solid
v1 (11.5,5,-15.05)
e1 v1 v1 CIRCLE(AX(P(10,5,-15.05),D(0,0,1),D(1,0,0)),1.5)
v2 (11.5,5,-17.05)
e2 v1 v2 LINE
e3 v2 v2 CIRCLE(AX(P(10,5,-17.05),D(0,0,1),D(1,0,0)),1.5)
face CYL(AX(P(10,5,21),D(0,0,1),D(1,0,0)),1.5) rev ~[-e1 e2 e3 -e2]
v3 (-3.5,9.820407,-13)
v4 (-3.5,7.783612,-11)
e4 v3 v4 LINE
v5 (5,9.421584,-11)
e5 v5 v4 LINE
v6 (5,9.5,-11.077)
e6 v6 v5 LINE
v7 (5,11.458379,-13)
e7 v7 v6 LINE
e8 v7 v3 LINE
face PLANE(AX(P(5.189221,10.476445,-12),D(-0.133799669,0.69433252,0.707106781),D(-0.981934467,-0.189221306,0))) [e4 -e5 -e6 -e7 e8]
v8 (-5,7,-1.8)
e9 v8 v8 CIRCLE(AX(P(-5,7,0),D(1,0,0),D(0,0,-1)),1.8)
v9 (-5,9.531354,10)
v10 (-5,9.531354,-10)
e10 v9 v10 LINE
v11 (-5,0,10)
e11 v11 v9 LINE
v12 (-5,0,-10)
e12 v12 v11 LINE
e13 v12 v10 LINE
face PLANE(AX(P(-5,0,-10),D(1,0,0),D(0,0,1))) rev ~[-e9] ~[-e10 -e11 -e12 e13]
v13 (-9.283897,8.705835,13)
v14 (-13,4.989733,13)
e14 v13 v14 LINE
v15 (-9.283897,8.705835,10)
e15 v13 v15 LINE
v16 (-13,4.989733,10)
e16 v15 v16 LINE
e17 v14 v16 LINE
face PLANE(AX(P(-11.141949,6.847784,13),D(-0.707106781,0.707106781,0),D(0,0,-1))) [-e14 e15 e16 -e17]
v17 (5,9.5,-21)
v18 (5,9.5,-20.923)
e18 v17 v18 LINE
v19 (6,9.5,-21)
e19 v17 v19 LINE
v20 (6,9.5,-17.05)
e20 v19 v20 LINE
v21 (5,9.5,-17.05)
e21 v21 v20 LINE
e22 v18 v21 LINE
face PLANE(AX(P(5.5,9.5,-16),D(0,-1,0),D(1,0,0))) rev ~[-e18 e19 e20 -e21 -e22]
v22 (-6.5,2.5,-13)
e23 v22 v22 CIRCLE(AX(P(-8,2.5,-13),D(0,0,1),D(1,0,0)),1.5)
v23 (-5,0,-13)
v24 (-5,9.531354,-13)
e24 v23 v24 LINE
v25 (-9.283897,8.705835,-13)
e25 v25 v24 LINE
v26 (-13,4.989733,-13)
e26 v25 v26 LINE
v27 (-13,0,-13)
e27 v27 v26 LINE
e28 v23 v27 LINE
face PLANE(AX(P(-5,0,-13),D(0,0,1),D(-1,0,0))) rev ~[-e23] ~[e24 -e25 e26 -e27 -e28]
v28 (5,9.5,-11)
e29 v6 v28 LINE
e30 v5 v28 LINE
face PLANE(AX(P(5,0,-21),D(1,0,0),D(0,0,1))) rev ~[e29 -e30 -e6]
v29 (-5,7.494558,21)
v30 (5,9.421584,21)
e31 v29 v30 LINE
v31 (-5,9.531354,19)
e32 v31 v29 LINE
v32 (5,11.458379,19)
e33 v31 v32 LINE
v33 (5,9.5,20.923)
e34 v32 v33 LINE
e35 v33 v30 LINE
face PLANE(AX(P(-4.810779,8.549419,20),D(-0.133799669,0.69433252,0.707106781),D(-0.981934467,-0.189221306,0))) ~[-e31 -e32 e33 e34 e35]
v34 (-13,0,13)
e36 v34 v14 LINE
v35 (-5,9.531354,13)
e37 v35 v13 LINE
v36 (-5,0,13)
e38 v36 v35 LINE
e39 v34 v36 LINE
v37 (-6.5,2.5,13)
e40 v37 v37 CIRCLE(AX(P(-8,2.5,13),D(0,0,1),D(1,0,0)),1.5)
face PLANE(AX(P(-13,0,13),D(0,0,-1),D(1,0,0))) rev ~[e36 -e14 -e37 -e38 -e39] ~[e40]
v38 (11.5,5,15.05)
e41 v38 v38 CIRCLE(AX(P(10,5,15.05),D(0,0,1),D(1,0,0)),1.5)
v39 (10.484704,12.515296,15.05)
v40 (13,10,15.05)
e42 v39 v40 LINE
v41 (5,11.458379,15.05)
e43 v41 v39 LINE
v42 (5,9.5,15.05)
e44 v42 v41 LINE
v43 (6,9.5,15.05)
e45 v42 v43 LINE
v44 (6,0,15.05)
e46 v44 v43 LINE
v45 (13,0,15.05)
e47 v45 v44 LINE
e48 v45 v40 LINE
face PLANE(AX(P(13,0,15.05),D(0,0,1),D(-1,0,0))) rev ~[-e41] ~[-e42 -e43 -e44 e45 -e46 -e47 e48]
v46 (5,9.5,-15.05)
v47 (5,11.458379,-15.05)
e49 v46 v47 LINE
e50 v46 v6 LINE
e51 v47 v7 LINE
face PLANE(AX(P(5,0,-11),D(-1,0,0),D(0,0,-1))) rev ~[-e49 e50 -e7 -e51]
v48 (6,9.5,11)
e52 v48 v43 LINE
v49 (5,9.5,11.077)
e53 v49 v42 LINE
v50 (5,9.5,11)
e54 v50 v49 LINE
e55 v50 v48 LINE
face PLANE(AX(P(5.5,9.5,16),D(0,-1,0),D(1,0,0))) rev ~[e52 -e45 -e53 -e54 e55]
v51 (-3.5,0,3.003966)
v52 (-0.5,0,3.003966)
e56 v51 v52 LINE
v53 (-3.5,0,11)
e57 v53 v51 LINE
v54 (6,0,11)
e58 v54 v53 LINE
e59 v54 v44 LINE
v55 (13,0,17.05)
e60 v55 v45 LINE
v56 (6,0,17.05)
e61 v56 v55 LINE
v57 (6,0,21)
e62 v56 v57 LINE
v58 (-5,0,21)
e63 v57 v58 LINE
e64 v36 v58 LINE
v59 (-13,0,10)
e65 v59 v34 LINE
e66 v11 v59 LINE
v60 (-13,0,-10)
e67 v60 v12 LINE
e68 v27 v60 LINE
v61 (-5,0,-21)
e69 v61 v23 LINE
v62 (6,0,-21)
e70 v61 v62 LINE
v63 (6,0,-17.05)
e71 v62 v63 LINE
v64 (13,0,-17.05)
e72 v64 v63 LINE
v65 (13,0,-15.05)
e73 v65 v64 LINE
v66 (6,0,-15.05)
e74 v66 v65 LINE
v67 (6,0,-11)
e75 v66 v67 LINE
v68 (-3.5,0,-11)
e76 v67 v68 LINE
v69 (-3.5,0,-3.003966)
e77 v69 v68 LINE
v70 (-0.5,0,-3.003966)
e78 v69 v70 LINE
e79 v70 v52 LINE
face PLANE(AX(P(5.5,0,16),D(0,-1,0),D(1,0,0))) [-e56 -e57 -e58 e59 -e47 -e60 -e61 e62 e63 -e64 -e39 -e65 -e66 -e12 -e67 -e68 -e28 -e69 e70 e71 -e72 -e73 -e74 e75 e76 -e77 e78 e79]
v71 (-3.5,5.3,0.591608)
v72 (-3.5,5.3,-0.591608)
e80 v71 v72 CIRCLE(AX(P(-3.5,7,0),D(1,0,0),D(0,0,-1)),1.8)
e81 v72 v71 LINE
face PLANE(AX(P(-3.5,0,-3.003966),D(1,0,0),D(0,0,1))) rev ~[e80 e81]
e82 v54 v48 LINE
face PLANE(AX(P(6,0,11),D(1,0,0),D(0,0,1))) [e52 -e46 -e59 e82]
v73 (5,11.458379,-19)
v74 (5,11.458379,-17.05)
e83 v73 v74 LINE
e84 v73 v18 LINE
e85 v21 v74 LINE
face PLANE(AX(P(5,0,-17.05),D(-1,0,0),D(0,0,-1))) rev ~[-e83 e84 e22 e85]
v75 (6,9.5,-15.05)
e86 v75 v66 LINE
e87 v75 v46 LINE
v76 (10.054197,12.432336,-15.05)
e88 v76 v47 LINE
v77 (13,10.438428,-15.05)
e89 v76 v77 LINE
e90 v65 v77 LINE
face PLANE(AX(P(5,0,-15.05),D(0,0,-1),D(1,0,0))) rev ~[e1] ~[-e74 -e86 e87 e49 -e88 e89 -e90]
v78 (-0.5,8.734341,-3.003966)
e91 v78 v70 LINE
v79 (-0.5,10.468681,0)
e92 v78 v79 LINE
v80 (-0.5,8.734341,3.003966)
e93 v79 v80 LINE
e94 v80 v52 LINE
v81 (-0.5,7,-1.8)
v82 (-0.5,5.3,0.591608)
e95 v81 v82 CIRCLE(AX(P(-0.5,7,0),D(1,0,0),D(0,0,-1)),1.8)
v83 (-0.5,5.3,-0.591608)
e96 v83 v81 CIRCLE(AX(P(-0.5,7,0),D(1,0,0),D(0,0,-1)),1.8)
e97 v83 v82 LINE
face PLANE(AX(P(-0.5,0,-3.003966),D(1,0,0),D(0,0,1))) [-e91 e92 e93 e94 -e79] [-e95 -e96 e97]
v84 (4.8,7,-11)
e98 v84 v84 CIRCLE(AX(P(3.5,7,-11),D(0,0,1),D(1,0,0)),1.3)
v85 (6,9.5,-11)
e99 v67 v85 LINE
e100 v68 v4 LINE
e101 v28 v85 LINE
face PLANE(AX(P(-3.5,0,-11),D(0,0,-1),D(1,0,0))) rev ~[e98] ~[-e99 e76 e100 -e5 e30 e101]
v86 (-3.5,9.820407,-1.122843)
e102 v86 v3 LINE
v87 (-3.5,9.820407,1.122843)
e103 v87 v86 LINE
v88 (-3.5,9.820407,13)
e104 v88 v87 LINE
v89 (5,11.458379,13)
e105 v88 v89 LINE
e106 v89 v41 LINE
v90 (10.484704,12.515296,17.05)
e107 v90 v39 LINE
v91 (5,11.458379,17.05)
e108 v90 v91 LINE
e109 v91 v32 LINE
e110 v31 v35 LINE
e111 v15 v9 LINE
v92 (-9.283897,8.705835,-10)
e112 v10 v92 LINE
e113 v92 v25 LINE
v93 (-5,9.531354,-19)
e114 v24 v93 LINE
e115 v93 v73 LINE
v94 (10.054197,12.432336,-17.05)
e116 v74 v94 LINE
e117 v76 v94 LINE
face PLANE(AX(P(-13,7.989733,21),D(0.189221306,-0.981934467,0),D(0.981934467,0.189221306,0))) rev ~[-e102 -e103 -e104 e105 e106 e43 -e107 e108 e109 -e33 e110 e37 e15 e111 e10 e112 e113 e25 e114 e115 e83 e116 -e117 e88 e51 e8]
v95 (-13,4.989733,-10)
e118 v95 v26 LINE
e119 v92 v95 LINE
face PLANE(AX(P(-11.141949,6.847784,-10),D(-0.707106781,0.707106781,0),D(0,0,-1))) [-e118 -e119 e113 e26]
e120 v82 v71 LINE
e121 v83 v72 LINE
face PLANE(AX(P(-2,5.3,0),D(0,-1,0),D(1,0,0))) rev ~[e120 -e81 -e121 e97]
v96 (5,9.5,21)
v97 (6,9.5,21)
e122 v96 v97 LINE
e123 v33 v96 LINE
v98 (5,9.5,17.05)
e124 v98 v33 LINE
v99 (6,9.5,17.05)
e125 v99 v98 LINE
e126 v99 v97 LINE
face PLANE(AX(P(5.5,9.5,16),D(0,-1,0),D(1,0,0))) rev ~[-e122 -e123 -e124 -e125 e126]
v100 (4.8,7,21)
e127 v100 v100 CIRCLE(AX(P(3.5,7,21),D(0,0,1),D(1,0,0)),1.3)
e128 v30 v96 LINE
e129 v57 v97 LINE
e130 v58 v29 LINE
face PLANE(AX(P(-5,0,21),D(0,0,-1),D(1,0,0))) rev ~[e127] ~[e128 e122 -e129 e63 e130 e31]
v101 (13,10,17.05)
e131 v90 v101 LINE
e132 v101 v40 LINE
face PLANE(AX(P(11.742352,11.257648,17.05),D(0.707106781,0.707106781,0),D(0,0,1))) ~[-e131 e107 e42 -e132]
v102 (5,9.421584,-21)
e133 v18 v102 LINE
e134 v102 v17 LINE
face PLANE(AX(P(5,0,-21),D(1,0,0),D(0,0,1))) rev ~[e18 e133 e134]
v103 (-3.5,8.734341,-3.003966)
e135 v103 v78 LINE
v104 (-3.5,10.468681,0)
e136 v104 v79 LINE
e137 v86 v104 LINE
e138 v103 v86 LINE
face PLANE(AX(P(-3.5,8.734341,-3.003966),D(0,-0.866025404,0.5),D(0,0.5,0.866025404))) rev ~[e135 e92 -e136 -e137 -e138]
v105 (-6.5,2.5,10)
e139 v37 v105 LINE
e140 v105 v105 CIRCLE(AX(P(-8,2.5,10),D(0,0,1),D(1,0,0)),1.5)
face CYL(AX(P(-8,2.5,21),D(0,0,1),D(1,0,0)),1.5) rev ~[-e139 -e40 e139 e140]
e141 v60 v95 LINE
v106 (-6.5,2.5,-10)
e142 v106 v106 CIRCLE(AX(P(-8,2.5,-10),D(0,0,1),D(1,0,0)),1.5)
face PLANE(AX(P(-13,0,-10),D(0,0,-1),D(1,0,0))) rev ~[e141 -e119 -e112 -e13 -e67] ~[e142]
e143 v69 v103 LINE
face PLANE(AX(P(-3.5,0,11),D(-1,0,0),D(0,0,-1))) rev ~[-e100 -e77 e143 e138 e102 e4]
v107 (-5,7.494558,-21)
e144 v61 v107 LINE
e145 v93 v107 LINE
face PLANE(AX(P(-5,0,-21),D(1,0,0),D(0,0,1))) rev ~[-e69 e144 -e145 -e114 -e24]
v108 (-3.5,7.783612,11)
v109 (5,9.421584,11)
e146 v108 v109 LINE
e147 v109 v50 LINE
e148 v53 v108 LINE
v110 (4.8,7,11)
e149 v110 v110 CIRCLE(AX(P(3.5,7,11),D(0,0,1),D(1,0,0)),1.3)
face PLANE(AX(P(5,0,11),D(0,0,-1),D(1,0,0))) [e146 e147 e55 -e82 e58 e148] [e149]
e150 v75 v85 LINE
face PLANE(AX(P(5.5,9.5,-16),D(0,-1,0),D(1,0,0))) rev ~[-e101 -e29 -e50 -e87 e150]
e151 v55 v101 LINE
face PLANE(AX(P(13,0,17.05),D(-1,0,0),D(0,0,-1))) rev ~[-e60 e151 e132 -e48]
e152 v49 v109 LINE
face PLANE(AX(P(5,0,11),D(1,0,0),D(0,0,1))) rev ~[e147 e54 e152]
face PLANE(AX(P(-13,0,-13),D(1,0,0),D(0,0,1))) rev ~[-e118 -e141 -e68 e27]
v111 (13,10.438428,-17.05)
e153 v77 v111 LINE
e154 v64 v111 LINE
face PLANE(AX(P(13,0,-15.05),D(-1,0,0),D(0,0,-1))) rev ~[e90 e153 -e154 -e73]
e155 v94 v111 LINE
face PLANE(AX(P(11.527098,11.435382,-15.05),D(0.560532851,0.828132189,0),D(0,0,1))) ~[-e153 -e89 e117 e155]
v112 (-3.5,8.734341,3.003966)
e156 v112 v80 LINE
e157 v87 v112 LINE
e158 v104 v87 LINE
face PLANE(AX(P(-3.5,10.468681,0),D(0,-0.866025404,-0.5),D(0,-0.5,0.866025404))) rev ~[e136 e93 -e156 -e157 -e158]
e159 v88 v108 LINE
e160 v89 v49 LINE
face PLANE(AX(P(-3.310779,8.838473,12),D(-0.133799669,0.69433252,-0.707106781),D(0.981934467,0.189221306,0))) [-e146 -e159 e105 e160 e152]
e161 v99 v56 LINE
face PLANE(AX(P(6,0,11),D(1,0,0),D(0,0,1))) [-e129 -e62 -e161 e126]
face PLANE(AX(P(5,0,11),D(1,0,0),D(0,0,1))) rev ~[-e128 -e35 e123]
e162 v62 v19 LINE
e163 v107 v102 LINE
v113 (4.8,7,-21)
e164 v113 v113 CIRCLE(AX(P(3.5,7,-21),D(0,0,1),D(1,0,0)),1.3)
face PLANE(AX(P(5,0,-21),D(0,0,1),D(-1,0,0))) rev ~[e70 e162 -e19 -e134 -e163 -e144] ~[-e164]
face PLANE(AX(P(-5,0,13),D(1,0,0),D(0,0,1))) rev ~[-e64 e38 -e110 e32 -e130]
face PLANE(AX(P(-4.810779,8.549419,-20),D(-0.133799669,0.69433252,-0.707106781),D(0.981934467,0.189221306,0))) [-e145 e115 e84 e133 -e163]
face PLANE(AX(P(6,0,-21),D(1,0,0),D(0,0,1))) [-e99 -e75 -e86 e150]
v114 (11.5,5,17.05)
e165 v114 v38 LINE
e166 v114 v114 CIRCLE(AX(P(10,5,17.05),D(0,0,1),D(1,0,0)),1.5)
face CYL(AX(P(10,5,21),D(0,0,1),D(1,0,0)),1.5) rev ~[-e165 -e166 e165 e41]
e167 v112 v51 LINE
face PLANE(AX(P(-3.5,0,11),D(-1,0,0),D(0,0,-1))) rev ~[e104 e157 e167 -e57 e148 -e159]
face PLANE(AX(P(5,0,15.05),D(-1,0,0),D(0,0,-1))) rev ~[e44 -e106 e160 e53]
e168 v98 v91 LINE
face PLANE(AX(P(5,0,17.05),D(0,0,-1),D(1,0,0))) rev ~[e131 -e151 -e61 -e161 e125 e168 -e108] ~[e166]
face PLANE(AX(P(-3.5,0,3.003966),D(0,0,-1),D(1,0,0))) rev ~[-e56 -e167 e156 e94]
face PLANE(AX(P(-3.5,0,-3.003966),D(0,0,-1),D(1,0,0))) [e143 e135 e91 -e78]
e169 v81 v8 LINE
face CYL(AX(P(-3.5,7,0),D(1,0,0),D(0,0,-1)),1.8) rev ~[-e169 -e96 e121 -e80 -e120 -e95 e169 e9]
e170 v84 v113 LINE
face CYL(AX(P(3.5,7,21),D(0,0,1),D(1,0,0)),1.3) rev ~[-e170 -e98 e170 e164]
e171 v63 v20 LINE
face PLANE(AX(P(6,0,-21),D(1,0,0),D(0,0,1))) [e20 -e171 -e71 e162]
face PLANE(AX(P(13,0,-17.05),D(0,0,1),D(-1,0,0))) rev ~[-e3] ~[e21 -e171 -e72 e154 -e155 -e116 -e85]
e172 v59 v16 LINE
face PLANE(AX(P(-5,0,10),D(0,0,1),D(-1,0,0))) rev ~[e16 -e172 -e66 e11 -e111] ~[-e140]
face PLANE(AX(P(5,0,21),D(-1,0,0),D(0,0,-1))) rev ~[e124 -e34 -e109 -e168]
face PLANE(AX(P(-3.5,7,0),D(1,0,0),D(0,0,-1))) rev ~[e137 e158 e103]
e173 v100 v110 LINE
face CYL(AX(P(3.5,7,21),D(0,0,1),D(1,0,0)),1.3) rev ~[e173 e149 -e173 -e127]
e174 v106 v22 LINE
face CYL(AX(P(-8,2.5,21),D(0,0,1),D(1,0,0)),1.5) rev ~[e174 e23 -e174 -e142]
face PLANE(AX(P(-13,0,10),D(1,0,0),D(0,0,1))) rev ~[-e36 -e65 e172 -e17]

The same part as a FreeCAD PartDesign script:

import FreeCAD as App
import Part
import Sketcher
from FreeCAD import Vector
Q = App.Units.Quantity


def edges_at(feature, points):
    """Names of the edges that pass closest to the given points."""
    edges = feature.Shape.Edges
    near = lambda p: min(range(len(edges)), key=lambda i: edges[i].distToShape(Part.Vertex(*p))[0])
    return sorted({f"Edge{near(p) + 1}" for p in points})


def add_polygon(sketch, points):
    """Adds a closed chain of lines whose ends are joined by coincident constraints."""
    first, n = sketch.GeometryCount, len(points)
    for a, b in zip(points, points[1:] + points[:1]):
        sketch.addGeometry(Part.LineSegment(App.Vector(*a, 0), App.Vector(*b, 0)), False)
    for i in range(n):
        sketch.addConstraint(Sketcher.Constraint("Coincident", first + i, 2, first + (i + 1) % n, 1))

doc = App.newDocument("Part")
body = doc.addObject("PartDesign::Body", "Body")

# Sketch on XZ plane
sketch1 = body.newObject("Sketcher::SketchObject", "Sketch")
sketch1.AttachmentSupport = (doc.getObject("XZ_Plane"), [""])
sketch1.MapMode = "FlatFace"
add_polygon(sketch1, [(13, 15.1), (5, 15.1), (5, 11), (-3.5, 11), (-3.5, -11), (5, -11), (5, -15.1), (13, -15.1), (13, -17.1), (5, -17.1), (5, -21), (-5, -21), (-5, -13), (-13, -13), (-13, -10), (-5, -10), (-5, 10), (-13, 10), (-13, 13), (-5, 13), (-5, 21), (5, 21), (5, 17.1), (13, 17.1)])  # lines 0-23
sketch1.addConstraint([
    Sketcher.Constraint("Horizontal", 0),
    Sketcher.Constraint("Vertical", 1),
    Sketcher.Constraint("Horizontal", 2),
    Sketcher.Constraint("Vertical", 3),
    Sketcher.Constraint("Horizontal", 4),
    Sketcher.Constraint("Vertical", 5),
    Sketcher.Constraint("Horizontal", 6),
    Sketcher.Constraint("Vertical", 7),
    Sketcher.Constraint("Horizontal", 8),
    Sketcher.Constraint("Vertical", 9),
    Sketcher.Constraint("Horizontal", 10),
    Sketcher.Constraint("Vertical", 11),
    Sketcher.Constraint("Horizontal", 12),
    Sketcher.Constraint("Vertical", 13),
    Sketcher.Constraint("Horizontal", 14),
    Sketcher.Constraint("Vertical", 15),
    Sketcher.Constraint("Horizontal", 16),
    Sketcher.Constraint("Vertical", 17),
    Sketcher.Constraint("Horizontal", 18),
    Sketcher.Constraint("Vertical", 19),
    Sketcher.Constraint("Horizontal", 20),
    Sketcher.Constraint("Vertical", 21),
    Sketcher.Constraint("Horizontal", 22),
    Sketcher.Constraint("Vertical", 23),
    Sketcher.Constraint("Symmetric", 9, 2, 19, 2, -1, 1),
    Sketcher.Constraint("Symmetric", 1, 2, 4, 2, -1),
    Sketcher.Constraint("Symmetric", 13, 2, 16, 2, -1),
    Sketcher.Constraint("Symmetric", 11, 2, 18, 2, -1),
    Sketcher.Constraint("Symmetric", 8, 2, 21, 2, -1),
    Sketcher.Constraint("Symmetric", 6, 2, 23, 2, -1),
    Sketcher.Constraint("Vertical", 5, 2, 8, 2),
    Sketcher.Constraint("Vertical", 11, 2, 14, 2),
    Sketcher.Constraint("Equal", 8, 12),
    Sketcher.Constraint("Equal", 22, 11),
    Sketcher.Constraint("DistanceX", 0, 2, 0, 1, 8.0),
    Sketcher.Constraint("DistanceX", 10, 2, 10, 1, 10.0),
    Sketcher.Constraint("DistanceY", 3, 2, 3, 1, 22.0),
    Sketcher.Constraint("DistanceY", 7, 2, 7, 1, 2.0),
    Sketcher.Constraint("DistanceY", 13, 1, 13, 2, 3.0),
    Sketcher.Constraint("DistanceY", 15, 1, 15, 2, 20.0),
    Sketcher.Constraint("DistanceX", 2, 2, 2, 1, 8.5),
    Sketcher.Constraint("DistanceY", 1, 2, 1, 1, 4.05),
])
pad1 = body.newObject("PartDesign::Pad", "Pad")
pad1.Profile = sketch1
pad1.Length = 13
pad1.Reversed = True

# Sketch on XY plane
sketch2 = body.newObject("Sketcher::SketchObject", "Sketch001")
sketch2.AttachmentSupport = (doc.getObject("XY_Plane"), [""])
sketch2.MapMode = "FlatFace"
sketch2.AttachmentOffset = App.Placement(Vector(0, 0, 21), App.Rotation())
sketch2.addGeometry(Part.Circle(Vector(10, 5, 0), Vector(0, 0, 1), 1.5), False)  # 0
sketch2.addGeometry(Part.Circle(Vector(-8, 2.5, 0), Vector(0, 0, 1), 1.5), False)  # 1
sketch2.addGeometry(Part.Circle(Vector(3.5, 7, 0), Vector(0, 0, 1), 1.3), False)  # 2
add_polygon(sketch2, [(-13, 8), (13, 13), (-13, 13)])  # lines 3-5
sketch2.addConstraint([
    Sketcher.Constraint("Horizontal", 4),
    Sketcher.Constraint("Vertical", 5),
    Sketcher.Constraint("Equal", 0, 1),
    Sketcher.Constraint("Diameter", 0, 3.0),
    Sketcher.Constraint("Diameter", 2, 2.6),
    Sketcher.Constraint("DistanceX", 4, 2, 4, 1, 26.0),
    Sketcher.Constraint("DistanceX", -1, 1, 0, 3, 10.0),
    Sketcher.Constraint("DistanceY", -1, 1, 0, 3, 5.0),
    Sketcher.Constraint("DistanceX", 1, 3, -1, 1, 8.0),
    Sketcher.Constraint("DistanceY", -1, 1, 2, 3, 7.0),
    Sketcher.Constraint("DistanceX", -1, 1, 3, 2, 13.0),
    Sketcher.Constraint("DistanceY", -1, 1, 3, 2, 13.0),
    Sketcher.Constraint("DistanceY", -1, 1, 1, 3, 2.5),
    Sketcher.Constraint("DistanceX", -1, 1, 2, 3, 3.5),
    Sketcher.Constraint("DistanceY", 5, 2, 5, 1, 5.010267),
])
pocket1 = body.newObject("PartDesign::Pocket", "Pocket")
pocket1.Profile = sketch2
pocket1.Type = "ThroughAll"
doc.recompute()

chamfer = body.newObject("PartDesign::Chamfer", "Chamfer")
chamfer.Base = (pocket1, edges_at(pocket1, [(-13, 7.99, -11.5)]))
chamfer.ChamferType = "Two distances"
chamfer.Size = 3.784471
chamfer.Size2 = 3
doc.recompute()

chamfer2 = body.newObject("PartDesign::Chamfer", "Chamfer001")
chamfer2.Base = (chamfer, edges_at(chamfer, [(-13, 7.99, 11.5)]))
chamfer2.ChamferType = "Two distances"
chamfer2.Size = 3.784471
chamfer2.Size2 = 3
doc.recompute()

chamfer3 = body.newObject("PartDesign::Chamfer", "Chamfer002")
chamfer3.Base = (chamfer2, edges_at(chamfer2, [(13, 13, 16.05)]))
chamfer3.ChamferType = "Two distances"
chamfer3.Size = 2.561572
chamfer3.Size2 = 3
doc.recompute()

chamfer4 = body.newObject("PartDesign::Chamfer", "Chamfer003")
chamfer4.Base = (chamfer3, edges_at(chamfer3, [(13, 13, -16.05)]))
chamfer4.ChamferType = "Two distances"
chamfer4.Size = 3
chamfer4.Size2 = 2.561572
doc.recompute()

chamfer5 = body.newObject("PartDesign::Chamfer", "Chamfer004")
chamfer5.Base = (chamfer4, edges_at(chamfer4, [
    (0, 10.495, -21),
    (0.75, 10.639, 11),
    (0.75, 10.639, -11),
    (0, 10.495, 21),
]))
chamfer5.Size = 2

# Sketch on YZ plane
sketch3 = body.newObject("Sketcher::SketchObject", "Sketch002")
sketch3.AttachmentSupport = (doc.getObject("YZ_Plane"), [""])
sketch3.MapMode = "FlatFace"
sketch3.AttachmentOffset = App.Placement(Vector(0, 0, -3.5), App.Rotation())
add_polygon(sketch3, [(10.5, 0), (8.7, 3), (5.3, 3), (3.5, 0), (5.3, -3), (8.7, -3)])  # lines 0-5
sketch3.addGeometry(Part.Circle(Vector(7, 0, 0), Vector(0, 0, 1), 1.8), False)  # 6
sketch3.addConstraint([
    Sketcher.Constraint("Horizontal", 1),
    Sketcher.Constraint("Horizontal", 4),
    Sketcher.Constraint("Symmetric", 1, 2, 3, 2, -1),
    Sketcher.Constraint("PointOnObject", 6, 3, -1),
    Sketcher.Constraint("PointOnObject", 2, 2, -1),
    Sketcher.Constraint("PointOnObject", 5, 2, -1),
    Sketcher.Constraint("Parallel", 0, 3),
    Sketcher.Constraint("Parallel", 2, 5),
    Sketcher.Constraint("Diameter", 6, 3.6),
    Sketcher.Constraint("Angle", 0, Q("120 deg")),
    Sketcher.Constraint("DistanceX", -1, 1, 6, 3, 7.0),
    Sketcher.Constraint("DistanceX", 1, 2, 1, 1, 3.468681),
    Sketcher.Constraint("Distance", 0, 3.468681),
    Sketcher.Constraint("DistanceX", -1, 1, 0, 2, 8.734341),
])
pad2 = body.newObject("PartDesign::Pad", "Pad001")
pad2.Profile = sketch3
pad2.Length = 3

# Sketch on YZ plane
sketch4 = body.newObject("Sketcher::SketchObject", "Sketch003")
sketch4.AttachmentSupport = (doc.getObject("YZ_Plane"), [""])
sketch4.MapMode = "FlatFace"
sketch4.AttachmentOffset = App.Placement(Vector(0, 0, -3.5), App.Rotation())
sketch4.addGeometry(Part.Circle(Vector(7, 0, 0), Vector(0, 0, 1), 1.8), False)
sketch4.addConstraint([
    Sketcher.Constraint("PointOnObject", 0, 3, -1),
    Sketcher.Constraint("Diameter", 0, 3.6),
    Sketcher.Constraint("DistanceX", -1, 1, 0, 3, 7.0),
])
pocket2 = body.newObject("PartDesign::Pocket", "Pocket001")
pocket2.Profile = sketch4
pocket2.Length = 3

# Sketch on XZ plane
sketch5 = body.newObject("Sketcher::SketchObject", "Sketch004")
sketch5.AttachmentSupport = (doc.getObject("XZ_Plane"), [""])
sketch5.MapMode = "FlatFace"
add_polygon(sketch5, [(-3.5, 3), (-3.5, -3), (-0.5, -3), (-0.5, 3)])  # lines 0-3
sketch5.addConstraint([
    Sketcher.Constraint("Vertical", 0),
    Sketcher.Constraint("Horizontal", 1),
    Sketcher.Constraint("Vertical", 2),
    Sketcher.Constraint("Horizontal", 3),
    Sketcher.Constraint("DistanceX", 1, 1, 1, 2, 3.0),
    Sketcher.Constraint("DistanceX", 0, 2, -1, 1, 3.5),
    Sketcher.Constraint("DistanceY", 0, 2, 0, 1, 6.007932),
    Sketcher.Constraint("DistanceY", 0, 2, -1, 1, 3.003966),
])
pad3 = body.newObject("PartDesign::Pad", "Pad002")
pad3.Profile = sketch5
pad3.Length = 5.3
pad3.Reversed = True

# Sketch on XZ plane
sketch6 = body.newObject("Sketcher::SketchObject", "Sketch005")
sketch6.AttachmentSupport = (doc.getObject("XZ_Plane"), [""])
sketch6.MapMode = "FlatFace"
add_polygon(sketch6, [(5, 21), (5, 11), (6, 11), (6, 21)])  # lines 0-3
add_polygon(sketch6, [(5, -11), (5, -21), (6, -21), (6, -11)])  # lines 4-7
sketch6.addConstraint([
    Sketcher.Constraint("Vertical", 0),
    Sketcher.Constraint("Horizontal", 1),
    Sketcher.Constraint("Vertical", 2),
    Sketcher.Constraint("Horizontal", 3),
    Sketcher.Constraint("Vertical", 4),
    Sketcher.Constraint("Horizontal", 5),
    Sketcher.Constraint("Vertical", 6),
    Sketcher.Constraint("Horizontal", 7),
    Sketcher.Constraint("Symmetric", 3, 2, 4, 2, -1),
    Sketcher.Constraint("Symmetric", 1, 2, 6, 2, -1),
    Sketcher.Constraint("DistanceX", 1, 1, 1, 2, 1.0),
    Sketcher.Constraint("DistanceY", 0, 2, 0, 1, 10.0),
    Sketcher.Constraint("DistanceX", -1, 1, 0, 2, 5.0),
    Sketcher.Constraint("DistanceY", -1, 1, 0, 2, 11.0),
])
pad4 = body.newObject("PartDesign::Pad", "Pad003")
pad4.Profile = sketch6
pad4.Length = 9.5
pad4.Reversed = True

doc.recompute()
